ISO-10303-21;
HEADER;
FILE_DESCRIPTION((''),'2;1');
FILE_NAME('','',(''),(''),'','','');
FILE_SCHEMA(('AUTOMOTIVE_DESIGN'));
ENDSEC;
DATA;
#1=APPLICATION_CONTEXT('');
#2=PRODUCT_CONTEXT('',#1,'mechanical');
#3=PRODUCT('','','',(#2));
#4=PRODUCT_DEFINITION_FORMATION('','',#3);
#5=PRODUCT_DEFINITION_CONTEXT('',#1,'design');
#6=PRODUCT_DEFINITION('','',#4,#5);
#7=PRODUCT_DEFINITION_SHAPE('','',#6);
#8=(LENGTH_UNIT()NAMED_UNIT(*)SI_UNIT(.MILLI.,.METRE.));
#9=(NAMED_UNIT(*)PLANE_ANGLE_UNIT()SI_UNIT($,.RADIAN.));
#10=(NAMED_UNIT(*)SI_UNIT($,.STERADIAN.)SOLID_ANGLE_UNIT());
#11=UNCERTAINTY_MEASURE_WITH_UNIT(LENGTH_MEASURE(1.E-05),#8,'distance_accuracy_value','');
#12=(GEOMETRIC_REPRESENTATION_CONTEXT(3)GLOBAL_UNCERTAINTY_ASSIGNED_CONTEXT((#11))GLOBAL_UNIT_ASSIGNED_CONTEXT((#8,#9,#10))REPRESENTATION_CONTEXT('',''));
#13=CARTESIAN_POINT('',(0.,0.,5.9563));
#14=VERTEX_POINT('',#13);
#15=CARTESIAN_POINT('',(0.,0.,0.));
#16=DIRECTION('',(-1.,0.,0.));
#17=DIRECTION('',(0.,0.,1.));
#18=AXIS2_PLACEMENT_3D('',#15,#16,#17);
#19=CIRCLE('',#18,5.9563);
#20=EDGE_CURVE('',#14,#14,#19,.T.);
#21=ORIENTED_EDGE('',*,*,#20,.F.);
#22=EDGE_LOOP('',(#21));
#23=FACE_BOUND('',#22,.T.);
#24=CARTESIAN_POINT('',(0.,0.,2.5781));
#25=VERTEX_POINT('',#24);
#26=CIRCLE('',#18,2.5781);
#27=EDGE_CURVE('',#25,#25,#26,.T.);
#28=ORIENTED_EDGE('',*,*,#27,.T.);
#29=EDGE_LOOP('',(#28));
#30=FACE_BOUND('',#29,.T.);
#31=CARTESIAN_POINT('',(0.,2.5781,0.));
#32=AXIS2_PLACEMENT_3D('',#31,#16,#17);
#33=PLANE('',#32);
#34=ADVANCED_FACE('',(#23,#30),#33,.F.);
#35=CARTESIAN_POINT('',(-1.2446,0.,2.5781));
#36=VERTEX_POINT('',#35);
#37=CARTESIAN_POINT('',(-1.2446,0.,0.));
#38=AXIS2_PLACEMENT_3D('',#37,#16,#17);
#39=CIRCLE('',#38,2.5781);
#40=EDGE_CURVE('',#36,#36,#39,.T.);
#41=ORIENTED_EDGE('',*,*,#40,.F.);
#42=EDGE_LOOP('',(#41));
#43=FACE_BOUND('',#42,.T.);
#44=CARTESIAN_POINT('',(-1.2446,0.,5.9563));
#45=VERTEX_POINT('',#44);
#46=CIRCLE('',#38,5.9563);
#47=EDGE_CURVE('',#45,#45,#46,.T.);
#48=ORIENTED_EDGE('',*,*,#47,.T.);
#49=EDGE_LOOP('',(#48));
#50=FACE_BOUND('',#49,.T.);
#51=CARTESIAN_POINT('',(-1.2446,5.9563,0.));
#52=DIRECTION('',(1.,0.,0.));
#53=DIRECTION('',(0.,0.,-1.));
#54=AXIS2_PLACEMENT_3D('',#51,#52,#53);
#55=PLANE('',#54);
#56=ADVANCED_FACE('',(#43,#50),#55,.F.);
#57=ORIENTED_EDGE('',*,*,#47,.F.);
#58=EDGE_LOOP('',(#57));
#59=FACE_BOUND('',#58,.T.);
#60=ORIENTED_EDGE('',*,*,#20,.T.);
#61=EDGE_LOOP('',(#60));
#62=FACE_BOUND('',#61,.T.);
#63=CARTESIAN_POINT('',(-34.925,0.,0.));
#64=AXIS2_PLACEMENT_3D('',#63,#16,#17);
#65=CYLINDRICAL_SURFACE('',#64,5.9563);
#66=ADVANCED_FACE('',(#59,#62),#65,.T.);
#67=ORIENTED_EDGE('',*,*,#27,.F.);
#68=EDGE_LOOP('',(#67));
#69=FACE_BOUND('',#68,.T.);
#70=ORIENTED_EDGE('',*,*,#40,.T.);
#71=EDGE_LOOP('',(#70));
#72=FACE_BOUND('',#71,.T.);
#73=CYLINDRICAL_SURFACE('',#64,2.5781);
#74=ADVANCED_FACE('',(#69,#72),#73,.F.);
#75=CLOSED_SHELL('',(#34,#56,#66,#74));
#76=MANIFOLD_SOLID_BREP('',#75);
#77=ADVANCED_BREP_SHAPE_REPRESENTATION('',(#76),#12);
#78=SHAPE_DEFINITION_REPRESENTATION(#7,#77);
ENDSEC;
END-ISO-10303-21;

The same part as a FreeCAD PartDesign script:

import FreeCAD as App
import Part
import Sketcher

V = App.Vector
Q = App.Units.Quantity


def add_polygon(sketch, points):
    """Adds a closed chain of lines whose ends are joined by coincident constraints."""
    first, n = sketch.GeometryCount, len(points)
    for a, b in zip(points, points[1:] + points[:1]):
        sketch.addGeometry(Part.LineSegment(App.Vector(*a, 0), App.Vector(*b, 0)), False)
    for i in range(n):
        sketch.addConstraint(Sketcher.Constraint("Coincident", first + i, 2, first + (i + 1) % n, 1))

doc = App.newDocument("Part")
params = doc.addObject("Spreadsheet::Sheet", "Params")
for row, (alias, value) in enumerate([
    ("sketch1_width", "0.049 in"),
    ("sketch1_height", "0.133 in"),
    ("revolution_angle", "360 deg"),
], start=1):
    params.set(f"A{row}", alias)
    params.set(f"B{row}", "=" + value)
    params.setAlias(f"B{row}", alias)

body = doc.addObject("PartDesign::Body", "Body")

sketch1 = body.newObject("Sketcher::SketchObject", "Sketch")
sketch1.AttachmentSupport = (doc.getObject("XY_Plane"), [""])
sketch1.MapMode = "FlatFace"
add_polygon(sketch1, [(-1.2, 6), (-1.2, 2.6), (0, 2.6), (0, 6)])
sketch1.addConstraint([
    Sketcher.Constraint("Vertical", 0),
    Sketcher.Constraint("Horizontal", 1),
    Sketcher.Constraint("Vertical", 2),
    Sketcher.Constraint("Horizontal", 3),
    Sketcher.Constraint("PointOnObject", 1, 2, -2),
    Sketcher.Constraint("DistanceX", 1, 1, 1, 2, Q("0.049 in")),
    Sketcher.Constraint("DistanceY", 0, 2, 0, 1, Q("0.133 in")),
    Sketcher.Constraint("DistanceY", -1, 1, 0, 2, Q("0.1015 in")),
])
sketch1.setExpression("Constraints[9]", "Params.sketch1_width")
sketch1.setExpression("Constraints[10]", "Params.sketch1_height")
revolution = body.newObject("PartDesign::Revolution", "Revolution")
revolution.Profile = sketch1
revolution.ReferenceAxis = (sketch1, ["H_Axis"])
revolution.setExpression("Angle", "Params.revolution_angle")

doc.recompute()
